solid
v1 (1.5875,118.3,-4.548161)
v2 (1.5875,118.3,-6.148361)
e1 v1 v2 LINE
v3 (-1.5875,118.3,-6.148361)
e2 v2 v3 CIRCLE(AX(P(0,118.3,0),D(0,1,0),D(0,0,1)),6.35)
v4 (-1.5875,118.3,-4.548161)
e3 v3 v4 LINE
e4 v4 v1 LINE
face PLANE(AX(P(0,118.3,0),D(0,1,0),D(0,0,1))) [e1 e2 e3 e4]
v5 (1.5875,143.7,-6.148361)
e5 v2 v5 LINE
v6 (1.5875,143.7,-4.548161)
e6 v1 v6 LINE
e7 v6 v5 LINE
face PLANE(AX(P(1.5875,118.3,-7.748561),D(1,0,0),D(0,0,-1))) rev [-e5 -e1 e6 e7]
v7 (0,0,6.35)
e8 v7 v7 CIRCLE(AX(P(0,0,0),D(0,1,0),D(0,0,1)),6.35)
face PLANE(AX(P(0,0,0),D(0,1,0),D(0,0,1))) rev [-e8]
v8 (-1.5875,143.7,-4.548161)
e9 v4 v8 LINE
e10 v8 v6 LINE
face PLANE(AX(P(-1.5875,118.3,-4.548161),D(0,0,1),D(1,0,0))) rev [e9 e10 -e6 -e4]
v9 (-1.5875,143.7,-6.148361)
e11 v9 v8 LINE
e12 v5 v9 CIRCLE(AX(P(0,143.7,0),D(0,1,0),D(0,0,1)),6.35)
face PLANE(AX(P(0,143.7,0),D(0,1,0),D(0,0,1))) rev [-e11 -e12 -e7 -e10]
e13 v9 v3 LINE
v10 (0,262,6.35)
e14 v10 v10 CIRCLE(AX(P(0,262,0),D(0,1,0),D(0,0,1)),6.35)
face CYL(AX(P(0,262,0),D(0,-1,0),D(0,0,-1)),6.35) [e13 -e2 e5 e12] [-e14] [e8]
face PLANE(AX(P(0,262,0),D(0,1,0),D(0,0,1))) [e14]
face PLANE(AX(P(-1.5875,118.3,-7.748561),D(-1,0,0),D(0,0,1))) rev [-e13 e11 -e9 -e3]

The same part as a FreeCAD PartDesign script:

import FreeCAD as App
import Part
import Sketcher
Q = App.Units.Quantity

doc = App.newDocument("Part")
body = doc.addObject("PartDesign::Body", "Body")

sketch1 = body.newObject("Sketcher::SketchObject", "Sketch")
sketch1.AttachmentSupport = (doc.getObject("XZ_Plane"), [""])
sketch1.MapMode = "FlatFace"
sketch1.addGeometry(Part.Circle(App.Vector(0, 0, 0), App.Vector(0, 0, 1), 6), False)
sketch1.addConstraint([
    Sketcher.Constraint("Coincident", 0, 3, -1, 1),
    Sketcher.Constraint("Diameter", 0, Q("0.5 in")),
])
pad1 = body.newObject("PartDesign::Pad", "Pad")
pad1.Profile = sketch1
pad1.Length = 262
pad1.Reversed = True

sketch2 = body.newObject("Sketcher::SketchObject", "Sketch001")
sketch2.AttachmentSupport = (doc.getObject("XZ_Plane"), [""])
sketch2.MapMode = "FlatFace"
sketch2.AttachmentOffset = App.Placement(App.Vector(0, 0, -131), App.Rotation())
sketch2.addGeometry([
    Part.LineSegment(App.Vector(-1.6, -7.7, 0), App.Vector(-1.6, -4.5, 0)),
    Part.LineSegment(App.Vector(-1.6, -4.5, 0), App.Vector(1.6, -4.5, 0)),
    Part.LineSegment(App.Vector(1.6, -4.5, 0), App.Vector(1.6, -7.7, 0)),
    Part.LineSegment(App.Vector(1.6, -7.7, 0), App.Vector(-1.6, -7.7, 0)),
], False)
sketch2.addConstraint([
    Sketcher.Constraint("Coincident", 0, 2, 1, 1),
    Sketcher.Constraint("Coincident", 1, 2, 2, 1),
    Sketcher.Constraint("Coincident", 2, 2, 3, 1),
    Sketcher.Constraint("Coincident", 3, 2, 0, 1),
    Sketcher.Constraint("Vertical", 0),
    Sketcher.Constraint("Horizontal", 1),
    Sketcher.Constraint("Vertical", 2),
    Sketcher.Constraint("Horizontal", 3),
    Sketcher.Constraint("DistanceX", 1, 1, 1, 2, Q("0.125 in")),
    Sketcher.Constraint("DistanceY", 0, 1, 0, 2, Q("0.126 in")),
    Sketcher.Constraint("DistanceX", 0, 2, -1, 1, Q("0.0625 in")),
    Sketcher.Constraint("DistanceY", 0, 2, -1, 1, Q("4.548161 mm")),
])
pocket1 = body.newObject("PartDesign::Pocket", "Pocket")
pocket1.Profile = sketch2
pocket1.Type = "TwoLengths"
pocket1.Length = Q("0.5 in")
pocket1.Length2 = Q("0.5 in")

doc.recompute()
